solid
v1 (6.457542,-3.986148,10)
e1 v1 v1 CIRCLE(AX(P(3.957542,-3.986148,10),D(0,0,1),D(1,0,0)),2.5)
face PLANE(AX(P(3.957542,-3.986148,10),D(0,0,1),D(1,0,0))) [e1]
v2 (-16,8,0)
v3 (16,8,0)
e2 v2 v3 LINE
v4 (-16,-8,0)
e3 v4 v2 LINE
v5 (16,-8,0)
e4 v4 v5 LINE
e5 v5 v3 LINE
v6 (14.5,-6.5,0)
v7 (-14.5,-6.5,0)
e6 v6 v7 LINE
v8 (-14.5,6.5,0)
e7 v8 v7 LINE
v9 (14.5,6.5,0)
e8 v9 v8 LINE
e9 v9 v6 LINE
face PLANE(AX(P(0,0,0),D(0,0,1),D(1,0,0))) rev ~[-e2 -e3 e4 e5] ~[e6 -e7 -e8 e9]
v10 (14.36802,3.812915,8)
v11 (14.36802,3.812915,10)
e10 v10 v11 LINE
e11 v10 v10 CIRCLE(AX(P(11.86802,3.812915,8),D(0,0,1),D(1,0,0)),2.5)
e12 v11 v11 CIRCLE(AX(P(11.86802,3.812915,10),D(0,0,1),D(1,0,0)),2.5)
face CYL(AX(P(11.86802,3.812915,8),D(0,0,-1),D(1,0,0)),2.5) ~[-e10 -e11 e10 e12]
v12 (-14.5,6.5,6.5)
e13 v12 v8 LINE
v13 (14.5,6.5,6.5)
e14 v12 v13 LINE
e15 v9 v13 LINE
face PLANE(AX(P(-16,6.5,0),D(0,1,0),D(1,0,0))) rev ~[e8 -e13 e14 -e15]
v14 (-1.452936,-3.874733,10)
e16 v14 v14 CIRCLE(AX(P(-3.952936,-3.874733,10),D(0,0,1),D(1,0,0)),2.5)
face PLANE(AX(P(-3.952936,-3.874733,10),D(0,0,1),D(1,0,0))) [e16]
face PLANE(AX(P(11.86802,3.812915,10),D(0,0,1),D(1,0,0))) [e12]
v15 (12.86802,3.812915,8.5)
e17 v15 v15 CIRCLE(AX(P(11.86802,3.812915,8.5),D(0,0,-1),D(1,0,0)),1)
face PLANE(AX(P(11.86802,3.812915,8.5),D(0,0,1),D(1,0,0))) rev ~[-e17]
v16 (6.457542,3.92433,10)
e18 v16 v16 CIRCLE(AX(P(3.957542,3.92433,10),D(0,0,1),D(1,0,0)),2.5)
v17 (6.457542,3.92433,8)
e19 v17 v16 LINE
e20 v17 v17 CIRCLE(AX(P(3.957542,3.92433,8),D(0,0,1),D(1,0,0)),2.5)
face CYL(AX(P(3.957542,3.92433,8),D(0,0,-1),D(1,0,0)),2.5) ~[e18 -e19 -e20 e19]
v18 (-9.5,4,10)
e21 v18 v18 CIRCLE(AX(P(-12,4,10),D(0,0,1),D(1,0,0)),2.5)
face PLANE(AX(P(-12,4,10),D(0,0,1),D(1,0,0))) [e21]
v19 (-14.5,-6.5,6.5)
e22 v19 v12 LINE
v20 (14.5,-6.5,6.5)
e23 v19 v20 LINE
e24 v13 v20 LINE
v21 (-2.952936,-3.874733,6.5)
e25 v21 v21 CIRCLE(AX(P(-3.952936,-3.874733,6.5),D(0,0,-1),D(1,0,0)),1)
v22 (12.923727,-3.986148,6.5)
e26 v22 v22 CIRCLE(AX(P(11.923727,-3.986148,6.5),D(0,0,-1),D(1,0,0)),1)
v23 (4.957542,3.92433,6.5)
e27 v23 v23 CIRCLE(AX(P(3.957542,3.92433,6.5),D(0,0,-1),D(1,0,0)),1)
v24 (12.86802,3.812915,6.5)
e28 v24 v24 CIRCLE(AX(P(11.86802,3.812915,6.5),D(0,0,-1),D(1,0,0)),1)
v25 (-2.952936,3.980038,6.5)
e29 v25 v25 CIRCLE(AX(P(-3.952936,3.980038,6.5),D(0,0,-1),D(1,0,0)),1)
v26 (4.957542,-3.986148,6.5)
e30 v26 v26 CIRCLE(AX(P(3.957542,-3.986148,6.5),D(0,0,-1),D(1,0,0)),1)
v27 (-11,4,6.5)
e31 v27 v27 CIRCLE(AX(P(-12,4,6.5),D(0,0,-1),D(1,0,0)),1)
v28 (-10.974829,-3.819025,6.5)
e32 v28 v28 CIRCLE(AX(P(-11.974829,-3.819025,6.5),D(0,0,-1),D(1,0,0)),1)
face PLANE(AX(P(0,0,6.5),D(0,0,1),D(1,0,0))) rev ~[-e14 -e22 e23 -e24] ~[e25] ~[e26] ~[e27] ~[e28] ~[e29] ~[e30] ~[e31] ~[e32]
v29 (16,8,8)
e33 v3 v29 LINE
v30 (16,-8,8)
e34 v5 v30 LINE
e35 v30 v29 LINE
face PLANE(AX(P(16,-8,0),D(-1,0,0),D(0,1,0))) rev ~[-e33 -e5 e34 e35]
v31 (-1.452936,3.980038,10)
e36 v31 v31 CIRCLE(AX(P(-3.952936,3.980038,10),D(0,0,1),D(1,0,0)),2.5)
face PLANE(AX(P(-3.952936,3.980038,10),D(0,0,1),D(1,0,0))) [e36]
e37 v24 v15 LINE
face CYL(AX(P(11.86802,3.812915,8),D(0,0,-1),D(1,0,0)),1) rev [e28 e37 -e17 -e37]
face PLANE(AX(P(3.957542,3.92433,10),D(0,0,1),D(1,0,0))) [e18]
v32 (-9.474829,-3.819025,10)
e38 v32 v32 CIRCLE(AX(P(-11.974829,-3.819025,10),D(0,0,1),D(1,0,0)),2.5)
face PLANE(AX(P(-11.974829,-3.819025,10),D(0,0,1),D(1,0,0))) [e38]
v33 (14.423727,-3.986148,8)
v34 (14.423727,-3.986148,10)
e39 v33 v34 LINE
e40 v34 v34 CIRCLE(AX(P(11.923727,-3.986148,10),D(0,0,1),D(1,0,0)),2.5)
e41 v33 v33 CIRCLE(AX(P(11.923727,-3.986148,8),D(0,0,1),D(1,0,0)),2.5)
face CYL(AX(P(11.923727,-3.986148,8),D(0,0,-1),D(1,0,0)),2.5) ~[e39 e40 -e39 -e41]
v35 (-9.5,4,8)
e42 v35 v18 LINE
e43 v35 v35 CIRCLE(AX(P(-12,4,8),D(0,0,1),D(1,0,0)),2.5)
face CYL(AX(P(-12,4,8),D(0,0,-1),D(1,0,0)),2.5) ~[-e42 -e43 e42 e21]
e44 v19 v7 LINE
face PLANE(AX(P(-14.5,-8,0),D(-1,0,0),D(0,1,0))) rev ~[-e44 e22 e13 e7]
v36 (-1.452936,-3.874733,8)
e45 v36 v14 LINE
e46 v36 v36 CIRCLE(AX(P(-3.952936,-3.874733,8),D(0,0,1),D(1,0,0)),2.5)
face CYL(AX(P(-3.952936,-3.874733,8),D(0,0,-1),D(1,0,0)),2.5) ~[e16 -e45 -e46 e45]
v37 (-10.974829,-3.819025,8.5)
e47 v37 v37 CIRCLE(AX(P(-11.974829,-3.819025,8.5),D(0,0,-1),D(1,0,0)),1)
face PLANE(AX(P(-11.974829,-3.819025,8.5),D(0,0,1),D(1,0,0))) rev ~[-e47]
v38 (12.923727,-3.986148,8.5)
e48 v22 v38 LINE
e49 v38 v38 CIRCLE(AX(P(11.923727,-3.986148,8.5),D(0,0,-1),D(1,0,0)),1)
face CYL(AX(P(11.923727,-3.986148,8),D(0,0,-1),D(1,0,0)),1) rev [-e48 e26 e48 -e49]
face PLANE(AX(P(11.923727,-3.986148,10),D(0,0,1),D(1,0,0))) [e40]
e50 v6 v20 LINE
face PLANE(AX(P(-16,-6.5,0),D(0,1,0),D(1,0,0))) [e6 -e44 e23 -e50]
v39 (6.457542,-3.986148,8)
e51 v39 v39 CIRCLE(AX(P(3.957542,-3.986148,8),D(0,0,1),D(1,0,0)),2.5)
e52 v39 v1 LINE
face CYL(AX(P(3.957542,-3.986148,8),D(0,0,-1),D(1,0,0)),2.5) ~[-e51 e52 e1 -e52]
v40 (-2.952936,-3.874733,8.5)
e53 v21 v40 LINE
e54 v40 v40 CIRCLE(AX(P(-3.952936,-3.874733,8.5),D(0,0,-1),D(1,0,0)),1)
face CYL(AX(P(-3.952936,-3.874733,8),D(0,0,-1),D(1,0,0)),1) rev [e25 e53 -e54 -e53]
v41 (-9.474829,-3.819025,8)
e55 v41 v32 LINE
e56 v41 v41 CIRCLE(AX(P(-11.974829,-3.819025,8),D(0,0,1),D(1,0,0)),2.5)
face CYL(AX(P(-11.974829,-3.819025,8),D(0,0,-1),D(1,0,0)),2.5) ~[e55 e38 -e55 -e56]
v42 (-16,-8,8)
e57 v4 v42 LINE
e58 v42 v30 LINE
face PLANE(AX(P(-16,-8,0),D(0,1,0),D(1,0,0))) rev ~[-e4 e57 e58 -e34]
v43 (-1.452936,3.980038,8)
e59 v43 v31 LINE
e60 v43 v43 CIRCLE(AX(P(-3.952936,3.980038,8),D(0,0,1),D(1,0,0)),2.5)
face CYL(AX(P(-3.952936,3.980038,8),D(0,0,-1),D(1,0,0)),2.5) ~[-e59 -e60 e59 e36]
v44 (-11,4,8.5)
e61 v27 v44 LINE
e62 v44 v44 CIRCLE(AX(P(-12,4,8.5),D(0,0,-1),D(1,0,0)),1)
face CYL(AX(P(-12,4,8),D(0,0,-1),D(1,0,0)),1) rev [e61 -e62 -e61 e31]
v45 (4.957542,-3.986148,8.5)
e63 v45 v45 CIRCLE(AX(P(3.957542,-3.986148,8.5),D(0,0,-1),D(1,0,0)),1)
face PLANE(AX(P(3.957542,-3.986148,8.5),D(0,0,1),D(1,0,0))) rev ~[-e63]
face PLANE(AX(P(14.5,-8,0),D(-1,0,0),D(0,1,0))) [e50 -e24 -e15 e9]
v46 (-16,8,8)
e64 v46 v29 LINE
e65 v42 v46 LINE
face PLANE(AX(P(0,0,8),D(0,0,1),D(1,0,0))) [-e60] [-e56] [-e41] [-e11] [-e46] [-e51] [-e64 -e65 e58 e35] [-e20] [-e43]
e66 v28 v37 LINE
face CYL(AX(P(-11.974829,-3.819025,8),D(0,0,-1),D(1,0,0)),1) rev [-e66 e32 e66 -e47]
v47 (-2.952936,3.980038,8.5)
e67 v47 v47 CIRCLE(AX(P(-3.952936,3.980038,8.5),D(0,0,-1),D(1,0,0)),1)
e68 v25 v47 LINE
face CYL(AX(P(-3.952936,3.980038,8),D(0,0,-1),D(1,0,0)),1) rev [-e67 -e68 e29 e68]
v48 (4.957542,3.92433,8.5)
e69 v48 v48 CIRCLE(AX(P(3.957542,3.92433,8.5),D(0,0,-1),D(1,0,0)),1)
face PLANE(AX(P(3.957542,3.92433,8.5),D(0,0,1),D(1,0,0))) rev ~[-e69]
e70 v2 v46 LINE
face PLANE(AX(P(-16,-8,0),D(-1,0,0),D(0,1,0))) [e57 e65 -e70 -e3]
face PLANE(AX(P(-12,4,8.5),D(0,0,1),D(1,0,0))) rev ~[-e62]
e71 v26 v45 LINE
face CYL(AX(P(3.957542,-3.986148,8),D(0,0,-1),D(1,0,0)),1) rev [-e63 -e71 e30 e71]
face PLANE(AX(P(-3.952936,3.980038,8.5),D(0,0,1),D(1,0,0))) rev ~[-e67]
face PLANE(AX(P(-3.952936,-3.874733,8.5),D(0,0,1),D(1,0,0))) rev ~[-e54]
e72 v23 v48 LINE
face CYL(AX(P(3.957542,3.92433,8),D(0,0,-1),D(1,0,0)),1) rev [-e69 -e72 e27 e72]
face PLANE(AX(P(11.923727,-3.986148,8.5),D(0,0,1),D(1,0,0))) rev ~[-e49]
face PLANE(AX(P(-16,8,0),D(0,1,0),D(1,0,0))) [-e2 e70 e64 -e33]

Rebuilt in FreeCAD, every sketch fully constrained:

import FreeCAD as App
import Part
import Sketcher
from FreeCAD import Vector


def faces_at(feature, points):
    """Names of the faces that lie closest to the given points."""
    faces = feature.Shape.Faces
    near = lambda p: min(range(len(faces)), key=lambda i: faces[i].distToShape(Part.Vertex(*p))[0])
    return sorted({f"Face{near(p) + 1}" for p in points})


def add_polygon(sketch, points):
    """Adds a closed chain of lines whose ends are joined by coincident constraints."""
    first, n = sketch.GeometryCount, len(points)
    for a, b in zip(points, points[1:] + points[:1]):
        sketch.addGeometry(Part.LineSegment(App.Vector(*a, 0), App.Vector(*b, 0)), False)
    for i in range(n):
        sketch.addConstraint(Sketcher.Constraint("Coincident", first + i, 2, first + (i + 1) % n, 1))

doc = App.newDocument("Part")
params = doc.addObject("Spreadsheet::Sheet", "Params")
for row, (alias, value) in enumerate([
    ("sketch1_width", "32 mm"),
    ("sketch1_height", "16 mm"),
    ("pad1_length", "8 mm"),
    ("sketch2_diameter", "5 mm"),
    ("pad2_length", "2 mm"),
    ("thickness_wall", "1.5 mm"),
], start=1):
    params.set(f"A{row}", alias)
    params.set(f"B{row}", "=" + value)
    params.setAlias(f"B{row}", alias)

body = doc.addObject("PartDesign::Body", "Body")

sketch1 = body.newObject("Sketcher::SketchObject", "Sketch")
sketch1.AttachmentSupport = (doc.getObject("XY_Plane"), [""])
sketch1.MapMode = "FlatFace"
add_polygon(sketch1, [(-16, 8), (-16, -8), (16, -8), (16, 8)])
sketch1.addConstraint([
    Sketcher.Constraint("Vertical", 0),
    Sketcher.Constraint("Horizontal", 1),
    Sketcher.Constraint("Vertical", 2),
    Sketcher.Constraint("Horizontal", 3),
    Sketcher.Constraint("Symmetric", 0, 2, 2, 2, -1, 1),
    Sketcher.Constraint("DistanceX", 1, 1, 1, 2, 32.0),
    Sketcher.Constraint("DistanceY", 0, 2, 0, 1, 16.0),
])
sketch1.setExpression("Constraints[9]", "Params.sketch1_width")
sketch1.setExpression("Constraints[10]", "Params.sketch1_height")
pad1 = body.newObject("PartDesign::Pad", "Pad")
pad1.Profile = sketch1
pad1.setExpression("Length", "Params.pad1_length")

sketch2 = body.newObject("Sketcher::SketchObject", "Sketch001")
sketch2.AttachmentSupport = (doc.getObject("XY_Plane"), [""])
sketch2.MapMode = "FlatFace"
sketch2.AttachmentOffset = App.Placement(Vector(0, 0, 8), App.Rotation())
sketch2.addGeometry([
    Part.Circle(Vector(-12, 4, 0), Vector(0, 0, 1), 2.5),
    Part.Circle(Vector(-4, 4, 0), Vector(0, 0, 1), 2.5),
    Part.Circle(Vector(4, 3.9, 0), Vector(0, 0, 1), 2.5),
    Part.Circle(Vector(11.9, 3.8, 0), Vector(0, 0, 1), 2.5),
    Part.Circle(Vector(-12, -3.8, 0), Vector(0, 0, 1), 2.5),
    Part.Circle(Vector(-4, -3.9, 0), Vector(0, 0, 1), 2.5),
    Part.Circle(Vector(4, -4, 0), Vector(0, 0, 1), 2.5),
    Part.Circle(Vector(11.9, -4, 0), Vector(0, 0, 1), 2.5),
], False)
sketch2.addConstraint([
    Sketcher.Constraint("Equal", 0, 1),
    Sketcher.Constraint("Equal", 1, 2),
    Sketcher.Constraint("Equal", 2, 3),
    Sketcher.Constraint("Equal", 3, 4),
    Sketcher.Constraint("Equal", 4, 5),
    Sketcher.Constraint("Equal", 5, 6),
    Sketcher.Constraint("Equal", 6, 7),
    Sketcher.Constraint("Horizontal", 6, 3, 7, 3),
    Sketcher.Constraint("Vertical", 1, 3, 5, 3),
    Sketcher.Constraint("Vertical", 2, 3, 6, 3),
    Sketcher.Constraint("Diameter", 0, 5.0),
    Sketcher.Constraint("DistanceX", 0, 3, -1, 1, 12.0),
    Sketcher.Constraint("DistanceY", -1, 1, 0, 3, 4.0),
    Sketcher.Constraint("DistanceX", -1, 1, 2, 3, 3.957542),
    Sketcher.Constraint("DistanceY", -1, 1, 2, 3, 3.92433),
    Sketcher.Constraint("DistanceX", -1, 1, 3, 3, 11.86802),
    Sketcher.Constraint("DistanceX", 4, 3, -1, 1, 11.974829),
    Sketcher.Constraint("DistanceY", 6, 3, -1, 1, 3.986148),
    Sketcher.Constraint("DistanceY", 4, 3, 3, 3, 7.63194),
    Sketcher.Constraint("DistanceY", 5, 3, 1, 3, 7.85477),
    Sketcher.Constraint("DistanceX", 1, 3, -1, 1, 3.952936),
    Sketcher.Constraint("DistanceY", -1, 1, 1, 3, 3.980038),
    Sketcher.Constraint("DistanceY", -1, 1, 3, 3, 3.812915),
    Sketcher.Constraint("DistanceX", -1, 1, 7, 3, 11.923727),
])
sketch2.setExpression("Constraints[10]", "Params.sketch2_diameter")
pad2 = body.newObject("PartDesign::Pad", "Pad001")
pad2.Profile = sketch2
pad2.setExpression("Length", "Params.pad2_length")
doc.recompute()

thickness = body.newObject("PartDesign::Thickness", "Thickness")
thickness.Base = (pad2, faces_at(pad2, [(0, 0, 0)]))
thickness.setExpression("Value", "Params.thickness_wall")
thickness.Reversed = True
thickness.Join = "Intersection"

doc.recompute()
